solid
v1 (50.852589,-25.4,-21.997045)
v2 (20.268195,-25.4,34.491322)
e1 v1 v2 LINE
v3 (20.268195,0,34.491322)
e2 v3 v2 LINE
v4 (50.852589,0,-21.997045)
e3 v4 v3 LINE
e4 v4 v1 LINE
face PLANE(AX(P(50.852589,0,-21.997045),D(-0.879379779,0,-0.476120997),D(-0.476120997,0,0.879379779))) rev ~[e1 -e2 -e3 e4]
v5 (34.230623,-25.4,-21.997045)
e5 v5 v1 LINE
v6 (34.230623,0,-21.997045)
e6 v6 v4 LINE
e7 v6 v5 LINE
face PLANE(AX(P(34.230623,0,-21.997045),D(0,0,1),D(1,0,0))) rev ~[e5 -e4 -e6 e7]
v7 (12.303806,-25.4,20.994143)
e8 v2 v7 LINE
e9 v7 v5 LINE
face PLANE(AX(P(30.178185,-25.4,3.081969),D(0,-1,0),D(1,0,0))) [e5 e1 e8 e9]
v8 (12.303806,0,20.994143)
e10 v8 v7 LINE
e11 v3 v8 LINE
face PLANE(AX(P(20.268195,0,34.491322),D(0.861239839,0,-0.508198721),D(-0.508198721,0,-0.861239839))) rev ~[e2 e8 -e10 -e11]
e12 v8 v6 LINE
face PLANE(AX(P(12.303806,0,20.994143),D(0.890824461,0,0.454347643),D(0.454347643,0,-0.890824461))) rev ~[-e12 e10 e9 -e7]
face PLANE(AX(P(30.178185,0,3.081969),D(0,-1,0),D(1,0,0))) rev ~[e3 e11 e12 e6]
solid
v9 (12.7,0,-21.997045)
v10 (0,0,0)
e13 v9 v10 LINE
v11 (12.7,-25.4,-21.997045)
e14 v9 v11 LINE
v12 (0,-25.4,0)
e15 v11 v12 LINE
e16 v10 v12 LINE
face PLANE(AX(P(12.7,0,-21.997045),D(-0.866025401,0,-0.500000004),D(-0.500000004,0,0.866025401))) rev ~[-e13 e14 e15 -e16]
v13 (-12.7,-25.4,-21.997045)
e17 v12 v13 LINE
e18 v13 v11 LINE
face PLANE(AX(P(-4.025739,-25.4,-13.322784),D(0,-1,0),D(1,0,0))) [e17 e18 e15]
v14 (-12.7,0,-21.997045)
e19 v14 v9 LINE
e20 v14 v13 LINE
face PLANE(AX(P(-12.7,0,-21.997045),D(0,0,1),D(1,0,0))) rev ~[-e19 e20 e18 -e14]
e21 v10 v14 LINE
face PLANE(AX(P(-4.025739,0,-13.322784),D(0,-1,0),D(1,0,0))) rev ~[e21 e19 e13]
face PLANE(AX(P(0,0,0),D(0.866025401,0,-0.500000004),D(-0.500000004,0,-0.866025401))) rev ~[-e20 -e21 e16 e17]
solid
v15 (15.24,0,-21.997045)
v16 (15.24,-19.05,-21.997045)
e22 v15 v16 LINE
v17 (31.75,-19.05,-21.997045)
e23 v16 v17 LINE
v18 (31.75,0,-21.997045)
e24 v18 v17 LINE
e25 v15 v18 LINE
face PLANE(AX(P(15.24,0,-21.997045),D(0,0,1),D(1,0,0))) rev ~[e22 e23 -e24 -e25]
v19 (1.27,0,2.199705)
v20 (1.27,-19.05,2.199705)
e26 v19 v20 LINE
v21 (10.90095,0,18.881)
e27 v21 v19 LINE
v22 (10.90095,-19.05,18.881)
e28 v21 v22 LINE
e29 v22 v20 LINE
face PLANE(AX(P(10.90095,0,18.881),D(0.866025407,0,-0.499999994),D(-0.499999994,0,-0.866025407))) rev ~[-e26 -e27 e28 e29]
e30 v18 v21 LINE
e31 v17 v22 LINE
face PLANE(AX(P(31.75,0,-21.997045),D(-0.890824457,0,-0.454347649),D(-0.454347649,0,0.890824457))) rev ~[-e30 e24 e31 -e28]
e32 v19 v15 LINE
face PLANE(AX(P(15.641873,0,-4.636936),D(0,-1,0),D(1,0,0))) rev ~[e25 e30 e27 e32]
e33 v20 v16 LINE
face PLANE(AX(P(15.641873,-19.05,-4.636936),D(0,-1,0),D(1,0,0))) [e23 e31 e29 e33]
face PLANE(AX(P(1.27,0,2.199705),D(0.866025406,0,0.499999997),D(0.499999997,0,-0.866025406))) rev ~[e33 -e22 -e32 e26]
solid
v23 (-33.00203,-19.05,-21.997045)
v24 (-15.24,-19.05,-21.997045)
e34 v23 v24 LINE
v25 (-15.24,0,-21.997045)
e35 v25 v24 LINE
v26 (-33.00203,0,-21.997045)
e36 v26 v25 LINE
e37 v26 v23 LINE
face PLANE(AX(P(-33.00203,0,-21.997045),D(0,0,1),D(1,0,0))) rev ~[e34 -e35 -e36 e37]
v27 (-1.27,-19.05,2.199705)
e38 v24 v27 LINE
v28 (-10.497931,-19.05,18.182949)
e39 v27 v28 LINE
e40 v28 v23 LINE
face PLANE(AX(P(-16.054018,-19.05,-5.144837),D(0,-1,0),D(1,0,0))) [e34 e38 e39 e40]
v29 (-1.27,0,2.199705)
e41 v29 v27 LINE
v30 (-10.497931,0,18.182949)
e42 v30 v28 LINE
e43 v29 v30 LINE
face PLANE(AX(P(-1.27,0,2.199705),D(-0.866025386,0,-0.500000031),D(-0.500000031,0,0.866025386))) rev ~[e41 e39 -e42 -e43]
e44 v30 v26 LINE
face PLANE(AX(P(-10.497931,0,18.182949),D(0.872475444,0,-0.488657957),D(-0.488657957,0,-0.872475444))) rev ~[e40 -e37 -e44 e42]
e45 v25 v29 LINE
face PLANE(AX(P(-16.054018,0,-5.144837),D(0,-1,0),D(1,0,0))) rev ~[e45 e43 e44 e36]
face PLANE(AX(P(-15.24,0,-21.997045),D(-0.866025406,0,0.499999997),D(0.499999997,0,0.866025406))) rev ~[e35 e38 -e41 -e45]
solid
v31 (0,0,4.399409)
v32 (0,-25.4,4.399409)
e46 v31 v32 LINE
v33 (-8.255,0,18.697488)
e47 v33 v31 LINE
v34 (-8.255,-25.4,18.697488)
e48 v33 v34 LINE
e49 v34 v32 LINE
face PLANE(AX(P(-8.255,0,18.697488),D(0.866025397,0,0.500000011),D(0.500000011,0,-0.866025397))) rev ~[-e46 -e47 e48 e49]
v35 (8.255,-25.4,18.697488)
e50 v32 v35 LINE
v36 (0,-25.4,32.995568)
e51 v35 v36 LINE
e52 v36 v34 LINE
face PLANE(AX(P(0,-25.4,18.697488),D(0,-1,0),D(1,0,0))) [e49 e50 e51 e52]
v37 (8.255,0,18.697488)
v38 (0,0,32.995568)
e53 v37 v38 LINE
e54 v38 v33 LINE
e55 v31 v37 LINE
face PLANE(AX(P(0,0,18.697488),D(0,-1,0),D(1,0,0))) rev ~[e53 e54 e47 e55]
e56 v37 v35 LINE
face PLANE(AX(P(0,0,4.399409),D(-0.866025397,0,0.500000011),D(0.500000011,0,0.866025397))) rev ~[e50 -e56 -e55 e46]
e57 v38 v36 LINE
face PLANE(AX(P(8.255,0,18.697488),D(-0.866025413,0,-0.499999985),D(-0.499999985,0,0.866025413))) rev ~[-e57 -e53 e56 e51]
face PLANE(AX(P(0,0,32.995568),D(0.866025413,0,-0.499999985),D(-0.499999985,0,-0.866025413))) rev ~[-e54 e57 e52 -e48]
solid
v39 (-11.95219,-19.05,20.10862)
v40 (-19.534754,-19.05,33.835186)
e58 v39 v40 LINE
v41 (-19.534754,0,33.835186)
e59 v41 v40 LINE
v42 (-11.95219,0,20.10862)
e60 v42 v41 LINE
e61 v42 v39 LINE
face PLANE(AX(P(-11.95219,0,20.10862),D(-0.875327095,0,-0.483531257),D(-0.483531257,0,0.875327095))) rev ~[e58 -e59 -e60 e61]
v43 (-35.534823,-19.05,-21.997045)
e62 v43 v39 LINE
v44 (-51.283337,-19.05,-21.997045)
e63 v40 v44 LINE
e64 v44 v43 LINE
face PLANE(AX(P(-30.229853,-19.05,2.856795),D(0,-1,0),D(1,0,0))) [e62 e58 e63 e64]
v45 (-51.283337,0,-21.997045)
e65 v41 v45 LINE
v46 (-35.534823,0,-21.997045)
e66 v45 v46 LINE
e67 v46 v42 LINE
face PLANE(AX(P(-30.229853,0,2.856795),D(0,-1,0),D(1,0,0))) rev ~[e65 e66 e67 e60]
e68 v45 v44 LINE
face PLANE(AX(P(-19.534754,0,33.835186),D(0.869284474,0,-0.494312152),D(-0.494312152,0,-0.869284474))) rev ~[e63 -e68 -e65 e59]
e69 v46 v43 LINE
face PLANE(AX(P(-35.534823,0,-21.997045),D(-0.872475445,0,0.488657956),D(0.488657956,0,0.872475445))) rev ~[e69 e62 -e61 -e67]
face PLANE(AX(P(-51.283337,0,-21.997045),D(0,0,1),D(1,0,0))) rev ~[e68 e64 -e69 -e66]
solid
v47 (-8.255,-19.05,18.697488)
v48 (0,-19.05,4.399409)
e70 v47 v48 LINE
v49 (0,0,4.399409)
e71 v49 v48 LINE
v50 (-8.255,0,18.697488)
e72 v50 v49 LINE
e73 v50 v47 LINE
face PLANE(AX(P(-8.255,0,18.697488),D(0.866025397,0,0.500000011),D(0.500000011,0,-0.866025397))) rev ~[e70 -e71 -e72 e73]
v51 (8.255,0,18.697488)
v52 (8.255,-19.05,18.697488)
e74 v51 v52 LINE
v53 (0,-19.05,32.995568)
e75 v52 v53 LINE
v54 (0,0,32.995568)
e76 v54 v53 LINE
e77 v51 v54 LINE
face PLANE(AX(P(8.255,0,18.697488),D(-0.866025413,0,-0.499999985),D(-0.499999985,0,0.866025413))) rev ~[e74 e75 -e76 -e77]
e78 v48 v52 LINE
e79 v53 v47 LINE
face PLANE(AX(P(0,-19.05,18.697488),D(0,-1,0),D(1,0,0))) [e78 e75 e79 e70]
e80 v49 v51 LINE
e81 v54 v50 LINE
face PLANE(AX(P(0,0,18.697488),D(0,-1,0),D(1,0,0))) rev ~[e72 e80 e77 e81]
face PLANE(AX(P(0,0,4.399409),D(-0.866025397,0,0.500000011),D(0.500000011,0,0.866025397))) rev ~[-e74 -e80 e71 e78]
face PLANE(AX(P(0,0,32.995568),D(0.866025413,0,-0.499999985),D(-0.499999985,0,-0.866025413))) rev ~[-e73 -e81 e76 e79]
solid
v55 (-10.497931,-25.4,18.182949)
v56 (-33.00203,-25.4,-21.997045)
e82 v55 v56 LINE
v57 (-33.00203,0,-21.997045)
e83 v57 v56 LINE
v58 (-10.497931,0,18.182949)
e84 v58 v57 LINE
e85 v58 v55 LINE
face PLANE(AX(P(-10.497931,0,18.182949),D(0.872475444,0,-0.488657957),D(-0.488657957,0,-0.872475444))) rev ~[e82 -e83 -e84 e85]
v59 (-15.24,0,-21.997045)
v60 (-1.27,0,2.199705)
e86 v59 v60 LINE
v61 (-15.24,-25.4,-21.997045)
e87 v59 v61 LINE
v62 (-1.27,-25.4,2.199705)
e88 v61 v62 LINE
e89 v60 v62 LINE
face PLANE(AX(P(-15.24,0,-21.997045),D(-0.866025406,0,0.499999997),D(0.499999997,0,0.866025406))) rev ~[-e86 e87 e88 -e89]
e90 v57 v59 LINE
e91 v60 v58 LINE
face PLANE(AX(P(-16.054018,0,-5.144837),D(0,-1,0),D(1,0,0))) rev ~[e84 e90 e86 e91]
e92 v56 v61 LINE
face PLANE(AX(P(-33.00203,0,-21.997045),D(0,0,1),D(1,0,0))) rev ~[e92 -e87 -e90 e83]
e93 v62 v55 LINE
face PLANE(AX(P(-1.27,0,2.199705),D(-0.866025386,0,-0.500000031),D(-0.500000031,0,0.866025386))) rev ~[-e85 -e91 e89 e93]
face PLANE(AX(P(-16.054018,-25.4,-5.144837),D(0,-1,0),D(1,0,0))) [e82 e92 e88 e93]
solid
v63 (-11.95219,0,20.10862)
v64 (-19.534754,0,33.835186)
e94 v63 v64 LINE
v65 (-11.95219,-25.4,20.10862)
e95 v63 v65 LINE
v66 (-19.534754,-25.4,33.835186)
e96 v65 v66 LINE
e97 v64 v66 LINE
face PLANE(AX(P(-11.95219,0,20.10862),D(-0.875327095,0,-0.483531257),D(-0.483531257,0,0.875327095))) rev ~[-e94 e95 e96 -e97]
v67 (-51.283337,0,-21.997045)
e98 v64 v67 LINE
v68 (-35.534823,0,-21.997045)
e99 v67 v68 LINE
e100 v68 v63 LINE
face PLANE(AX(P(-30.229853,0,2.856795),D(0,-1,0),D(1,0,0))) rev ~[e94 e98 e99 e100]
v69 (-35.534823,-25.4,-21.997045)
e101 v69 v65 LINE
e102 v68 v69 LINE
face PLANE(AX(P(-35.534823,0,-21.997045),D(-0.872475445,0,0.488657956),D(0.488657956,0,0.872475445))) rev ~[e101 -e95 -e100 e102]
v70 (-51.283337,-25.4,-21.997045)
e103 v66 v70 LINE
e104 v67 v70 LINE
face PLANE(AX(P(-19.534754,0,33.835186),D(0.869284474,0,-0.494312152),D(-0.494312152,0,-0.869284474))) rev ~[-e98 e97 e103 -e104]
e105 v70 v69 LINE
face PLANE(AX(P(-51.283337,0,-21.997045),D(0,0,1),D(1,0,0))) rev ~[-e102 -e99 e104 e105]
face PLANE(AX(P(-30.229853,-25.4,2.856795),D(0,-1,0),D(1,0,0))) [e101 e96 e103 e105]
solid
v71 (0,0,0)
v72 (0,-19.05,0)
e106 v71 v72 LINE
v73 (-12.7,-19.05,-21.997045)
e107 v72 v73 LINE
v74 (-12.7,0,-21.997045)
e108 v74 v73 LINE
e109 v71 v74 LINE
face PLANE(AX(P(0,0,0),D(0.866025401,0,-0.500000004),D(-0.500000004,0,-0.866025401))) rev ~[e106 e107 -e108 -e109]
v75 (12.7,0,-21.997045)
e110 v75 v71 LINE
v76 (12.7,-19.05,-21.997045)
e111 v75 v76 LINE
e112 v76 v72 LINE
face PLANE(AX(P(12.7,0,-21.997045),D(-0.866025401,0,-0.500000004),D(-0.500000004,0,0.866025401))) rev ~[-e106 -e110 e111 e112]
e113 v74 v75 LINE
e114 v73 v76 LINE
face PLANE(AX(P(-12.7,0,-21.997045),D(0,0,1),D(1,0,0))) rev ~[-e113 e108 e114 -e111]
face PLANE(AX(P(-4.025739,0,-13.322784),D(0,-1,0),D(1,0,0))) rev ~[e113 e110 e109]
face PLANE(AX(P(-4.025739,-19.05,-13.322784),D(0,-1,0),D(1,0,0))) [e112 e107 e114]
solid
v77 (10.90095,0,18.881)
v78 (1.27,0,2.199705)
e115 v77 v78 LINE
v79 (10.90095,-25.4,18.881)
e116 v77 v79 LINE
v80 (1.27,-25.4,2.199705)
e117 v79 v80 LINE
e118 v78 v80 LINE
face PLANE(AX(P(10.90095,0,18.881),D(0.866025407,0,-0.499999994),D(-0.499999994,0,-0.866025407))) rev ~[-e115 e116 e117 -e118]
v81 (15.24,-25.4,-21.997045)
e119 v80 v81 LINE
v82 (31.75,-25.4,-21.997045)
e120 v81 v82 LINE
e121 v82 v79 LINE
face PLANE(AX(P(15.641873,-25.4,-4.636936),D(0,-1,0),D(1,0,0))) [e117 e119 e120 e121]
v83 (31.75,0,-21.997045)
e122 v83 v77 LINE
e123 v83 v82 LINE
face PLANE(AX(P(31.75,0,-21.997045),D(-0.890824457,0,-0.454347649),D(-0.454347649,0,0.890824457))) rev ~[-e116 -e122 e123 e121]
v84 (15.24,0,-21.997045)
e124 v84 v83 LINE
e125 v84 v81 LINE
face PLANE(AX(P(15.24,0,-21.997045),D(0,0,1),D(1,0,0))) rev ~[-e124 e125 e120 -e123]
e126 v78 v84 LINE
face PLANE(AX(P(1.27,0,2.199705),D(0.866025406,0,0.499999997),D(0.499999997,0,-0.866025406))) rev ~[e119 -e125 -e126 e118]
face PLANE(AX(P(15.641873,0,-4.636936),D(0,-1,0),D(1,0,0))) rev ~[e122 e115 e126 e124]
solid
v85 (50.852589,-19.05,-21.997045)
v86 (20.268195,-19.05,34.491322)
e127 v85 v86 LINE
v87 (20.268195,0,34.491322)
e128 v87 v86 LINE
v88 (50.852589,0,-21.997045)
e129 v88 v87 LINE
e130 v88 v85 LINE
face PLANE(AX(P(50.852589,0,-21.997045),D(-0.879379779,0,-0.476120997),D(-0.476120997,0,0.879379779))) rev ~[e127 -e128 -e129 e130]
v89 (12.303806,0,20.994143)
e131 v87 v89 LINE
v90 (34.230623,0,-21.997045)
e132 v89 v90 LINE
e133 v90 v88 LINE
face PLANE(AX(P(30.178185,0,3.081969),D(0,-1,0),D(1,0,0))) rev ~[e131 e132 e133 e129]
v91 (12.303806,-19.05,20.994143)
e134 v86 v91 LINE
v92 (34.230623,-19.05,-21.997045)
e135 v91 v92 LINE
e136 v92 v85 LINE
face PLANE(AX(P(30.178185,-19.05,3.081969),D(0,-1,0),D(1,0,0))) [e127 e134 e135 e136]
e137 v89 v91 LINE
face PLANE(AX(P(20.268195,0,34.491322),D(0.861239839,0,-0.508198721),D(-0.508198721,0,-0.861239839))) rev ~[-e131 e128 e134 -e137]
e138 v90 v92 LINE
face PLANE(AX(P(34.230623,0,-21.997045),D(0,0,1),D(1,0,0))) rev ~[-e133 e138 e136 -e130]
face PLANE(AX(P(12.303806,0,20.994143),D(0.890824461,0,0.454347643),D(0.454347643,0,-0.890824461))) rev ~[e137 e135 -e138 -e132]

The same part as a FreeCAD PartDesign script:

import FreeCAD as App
import Part
import Sketcher
from FreeCAD import Vector
Q = App.Units.Quantity


def add_polygon(sketch, points):
    """Adds a closed chain of lines whose ends are joined by coincident constraints."""
    first, n = sketch.GeometryCount, len(points)
    for a, b in zip(points, points[1:] + points[:1]):
        sketch.addGeometry(Part.LineSegment(App.Vector(*a, 0), App.Vector(*b, 0)), False)
    for i in range(n):
        sketch.addConstraint(Sketcher.Constraint("Coincident", first + i, 2, first + (i + 1) % n, 1))

doc = App.newDocument("Part")
body = doc.addObject("PartDesign::Body", "Body")
body.AllowCompound = True

# Sketch on XZ plane
sketch1 = doc.addObject("Sketcher::SketchObject", "Sketch")
body.addObject(sketch1)
sketch1.AttachmentSupport = (doc.XZ_Plane, [""])
sketch1.MapMode = "FlatFace"
add_polygon(sketch1, [(0, 0), (-12.7, -21.997045), (12.7, -21.997045)])  # lines 0-2
add_polygon(sketch1, [(-11.95219, 20.10862), (-19.534754, 33.835186), (-51.283337, -21.997045), (-35.534823, -21.997045)])  # lines 3-6
add_polygon(sketch1, [(15.24, -21.997045), (31.75, -21.997045), (10.90095, 18.881), (1.27, 2.199705)])  # lines 7-10
add_polygon(sketch1, [(50.852589, -21.997045), (20.268195, 34.491322), (12.303806, 20.994143), (34.230623, -21.997045)])  # lines 11-14
add_polygon(sketch1, [(-15.24, -21.997045), (-1.27, 2.199705), (-10.497931, 18.182949), (-33.00203, -21.997045)])  # lines 15-18
add_polygon(sketch1, [(8.255, 18.697488), (0, 32.995568), (-8.255, 18.697488), (0, 4.399409)])  # lines 19-22
sketch1.addConstraint(Sketcher.Constraint("Horizontal", 1))
sketch1.addConstraint(Sketcher.Constraint("Horizontal", 5))
sketch1.addConstraint(Sketcher.Constraint("Horizontal", 7))
sketch1.addConstraint(Sketcher.Constraint("Horizontal", 14))
sketch1.addConstraint(Sketcher.Constraint("Horizontal", 18))
sketch1.addConstraint(Sketcher.Constraint("Coincident", 2, 2, -1, 1))
sketch1.addConstraint(Sketcher.Constraint("Symmetric", 9, 2, 15, 2, -2))
sketch1.addConstraint(Sketcher.Constraint("Symmetric", 10, 2, 18, 2, -2))
sketch1.addConstraint(Sketcher.Constraint("Symmetric", 20, 2, 22, 2, -2))
sketch1.addConstraint(Sketcher.Constraint("PointOnObject", 19, 2, -2))
sketch1.addConstraint(Sketcher.Constraint("PointOnObject", 21, 2, -2))
sketch1.addConstraint(Sketcher.Constraint("Parallel", 0, 9))
sketch1.addConstraint(Sketcher.Constraint("Parallel", 2, 10))
sketch1.addConstraint(Sketcher.Constraint("Parallel", 8, 13))
sketch1.addConstraint(Sketcher.Constraint("Parallel", 9, 15))
sketch1.addConstraint(Sketcher.Constraint("Parallel", 10, 16))
sketch1.addConstraint(Sketcher.Constraint("Parallel", 6, 17))
sketch1.addConstraint(Sketcher.Constraint("Parallel", 16, 19))
sketch1.addConstraint(Sketcher.Constraint("Parallel", 19, 21))
sketch1.addConstraint(Sketcher.Constraint("Horizontal", 1, 2, 4, 2))
sketch1.addConstraint(Sketcher.Constraint("Horizontal", 5, 2, 7, 2))
sketch1.addConstraint(Sketcher.Constraint("Horizontal", 10, 2, 13, 2))
sketch1.addConstraint(Sketcher.Constraint("Equal", 6, 13))
sketch1.addConstraint(Sketcher.Constraint("DistanceX", 1, 1, 1, 2, Q("1 in")))
sketch1.addConstraint(Sketcher.Constraint("Distance", 0, Q("1 in")))
sketch1.addConstraint(Sketcher.Constraint("Distance", 6, Q("1.9 in")))
sketch1.addConstraint(Sketcher.Constraint("Distance", 10, Q("1.1 in")))
sketch1.addConstraint(Sketcher.Constraint("DistanceX", 7, 1, 7, 2, Q("0.65 in")))
sketch1.addConstraint(Sketcher.Constraint("DistanceX", -1, 1, 10, 2, Q("0.6 in")))
sketch1.addConstraint(Sketcher.Constraint("Distance", 19, Q("0.65 in")))
sketch1.addConstraint(Sketcher.Constraint("Distance", 11, Q("2.529 in")))
sketch1.addConstraint(Sketcher.Constraint("Distance", 12, Q("0.617 in")))
sketch1.addConstraint(Sketcher.Constraint("Distance", 4, 64.227802))
sketch1.addConstraint(Sketcher.Constraint("Distance", 9, 19.2619))
sketch1.addConstraint(Sketcher.Constraint("DistanceX", 18, 1, 18, 2, 17.76203))
sketch1.addConstraint(Sketcher.Constraint("DistanceY", 6, 2, 11, 2, 14.382702))
sketch1.addConstraint(Sketcher.Constraint("Distance", 3, 15.681642))
sketch1.addConstraint(Sketcher.Constraint("Distance", 16, 18.455861))
sketch1.addConstraint(Sketcher.Constraint("DistanceX", 5, 1, 5, 2, 15.748514))
sketch1.addConstraint(Sketcher.Constraint("DistanceX", 6, 2, -1, 1, 11.95219))
sketch1.addConstraint(Sketcher.Constraint("DistanceX", -1, 1, 14, 2, 50.852589))
sketch1.addConstraint(Sketcher.Constraint("DistanceY", -1, 1, 20, 2, 18.697488))
pad1 = doc.addObject("PartDesign::Pad", "Pad")
body.addObject(pad1)
pad1.Profile = sketch1
pad1.Length = Q("0.75 in")
body2 = doc.addObject("PartDesign::Body", "Body001")
body2.AllowCompound = True

# Sketch on XZ plane
sketch2 = doc.addObject("Sketcher::SketchObject", "Sketch001")
body2.addObject(sketch2)
sketch2.AttachmentSupport = (doc.getObject("XZ_Plane001"), [""])
sketch2.MapMode = "FlatFace"
add_polygon(sketch2, [(0, 0), (-12.7, -21.997045), (12.7, -21.997045)])  # lines 0-2
add_polygon(sketch2, [(-11.95219, 20.10862), (-19.534754, 33.835186), (-51.283337, -21.997045), (-35.534823, -21.997045)])  # lines 3-6
add_polygon(sketch2, [(15.24, -21.997045), (31.75, -21.997045), (10.90095, 18.881), (1.27, 2.199705)])  # lines 7-10
add_polygon(sketch2, [(50.852589, -21.997045), (20.268195, 34.491322), (12.303806, 20.994143), (34.230623, -21.997045)])  # lines 11-14
add_polygon(sketch2, [(-15.24, -21.997045), (-1.27, 2.199705), (-10.497931, 18.182949), (-33.00203, -21.997045)])  # lines 15-18
add_polygon(sketch2, [(8.255, 18.697488), (0, 32.995568), (-8.255, 18.697488), (0, 4.399409)])  # lines 19-22
sketch2.addConstraint(Sketcher.Constraint("Horizontal", 1))
sketch2.addConstraint(Sketcher.Constraint("Horizontal", 5))
sketch2.addConstraint(Sketcher.Constraint("Horizontal", 7))
sketch2.addConstraint(Sketcher.Constraint("Horizontal", 14))
sketch2.addConstraint(Sketcher.Constraint("Horizontal", 18))
sketch2.addConstraint(Sketcher.Constraint("Coincident", 2, 2, -1, 1))
sketch2.addConstraint(Sketcher.Constraint("Symmetric", 9, 2, 15, 2, -2))
sketch2.addConstraint(Sketcher.Constraint("Symmetric", 10, 2, 18, 2, -2))
sketch2.addConstraint(Sketcher.Constraint("Symmetric", 20, 2, 22, 2, -2))
sketch2.addConstraint(Sketcher.Constraint("PointOnObject", 19, 2, -2))
sketch2.addConstraint(Sketcher.Constraint("PointOnObject", 21, 2, -2))
sketch2.addConstraint(Sketcher.Constraint("Parallel", 0, 9))
sketch2.addConstraint(Sketcher.Constraint("Parallel", 2, 10))
sketch2.addConstraint(Sketcher.Constraint("Parallel", 8, 13))
sketch2.addConstraint(Sketcher.Constraint("Parallel", 9, 15))
sketch2.addConstraint(Sketcher.Constraint("Parallel", 10, 16))
sketch2.addConstraint(Sketcher.Constraint("Parallel", 6, 17))
sketch2.addConstraint(Sketcher.Constraint("Parallel", 16, 19))
sketch2.addConstraint(Sketcher.Constraint("Parallel", 19, 21))
sketch2.addConstraint(Sketcher.Constraint("Horizontal", 1, 2, 4, 2))
sketch2.addConstraint(Sketcher.Constraint("Horizontal", 5, 2, 7, 2))
sketch2.addConstraint(Sketcher.Constraint("Horizontal", 10, 2, 13, 2))
sketch2.addConstraint(Sketcher.Constraint("Equal", 6, 13))
sketch2.addConstraint(Sketcher.Constraint("DistanceX", 1, 1, 1, 2, Q("1 in")))
sketch2.addConstraint(Sketcher.Constraint("Distance", 0, Q("1 in")))
sketch2.addConstraint(Sketcher.Constraint("Distance", 6, Q("1.9 in")))
sketch2.addConstraint(Sketcher.Constraint("Distance", 10, Q("1.1 in")))
sketch2.addConstraint(Sketcher.Constraint("DistanceX", 7, 1, 7, 2, Q("0.65 in")))
sketch2.addConstraint(Sketcher.Constraint("DistanceX", -1, 1, 10, 2, Q("0.6 in")))
sketch2.addConstraint(Sketcher.Constraint("Distance", 19, Q("0.65 in")))
sketch2.addConstraint(Sketcher.Constraint("Distance", 11, Q("2.529 in")))
sketch2.addConstraint(Sketcher.Constraint("Distance", 12, Q("0.617 in")))
sketch2.addConstraint(Sketcher.Constraint("Distance", 4, 64.227802))
sketch2.addConstraint(Sketcher.Constraint("Distance", 9, 19.2619))
sketch2.addConstraint(Sketcher.Constraint("DistanceX", 18, 1, 18, 2, 17.76203))
sketch2.addConstraint(Sketcher.Constraint("DistanceY", 6, 2, 11, 2, 14.382702))
sketch2.addConstraint(Sketcher.Constraint("Distance", 3, 15.681642))
sketch2.addConstraint(Sketcher.Constraint("Distance", 16, 18.455861))
sketch2.addConstraint(Sketcher.Constraint("DistanceX", 5, 1, 5, 2, 15.748514))
sketch2.addConstraint(Sketcher.Constraint("DistanceX", 6, 2, -1, 1, 11.95219))
sketch2.addConstraint(Sketcher.Constraint("DistanceX", -1, 1, 14, 2, 50.852589))
sketch2.addConstraint(Sketcher.Constraint("DistanceY", -1, 1, 20, 2, 18.697488))
pad2 = doc.addObject("PartDesign::Pad", "Pad001")
body2.addObject(pad2)
pad2.Profile = sketch2
pad2.Length = Q("1 in")

doc.recompute()
